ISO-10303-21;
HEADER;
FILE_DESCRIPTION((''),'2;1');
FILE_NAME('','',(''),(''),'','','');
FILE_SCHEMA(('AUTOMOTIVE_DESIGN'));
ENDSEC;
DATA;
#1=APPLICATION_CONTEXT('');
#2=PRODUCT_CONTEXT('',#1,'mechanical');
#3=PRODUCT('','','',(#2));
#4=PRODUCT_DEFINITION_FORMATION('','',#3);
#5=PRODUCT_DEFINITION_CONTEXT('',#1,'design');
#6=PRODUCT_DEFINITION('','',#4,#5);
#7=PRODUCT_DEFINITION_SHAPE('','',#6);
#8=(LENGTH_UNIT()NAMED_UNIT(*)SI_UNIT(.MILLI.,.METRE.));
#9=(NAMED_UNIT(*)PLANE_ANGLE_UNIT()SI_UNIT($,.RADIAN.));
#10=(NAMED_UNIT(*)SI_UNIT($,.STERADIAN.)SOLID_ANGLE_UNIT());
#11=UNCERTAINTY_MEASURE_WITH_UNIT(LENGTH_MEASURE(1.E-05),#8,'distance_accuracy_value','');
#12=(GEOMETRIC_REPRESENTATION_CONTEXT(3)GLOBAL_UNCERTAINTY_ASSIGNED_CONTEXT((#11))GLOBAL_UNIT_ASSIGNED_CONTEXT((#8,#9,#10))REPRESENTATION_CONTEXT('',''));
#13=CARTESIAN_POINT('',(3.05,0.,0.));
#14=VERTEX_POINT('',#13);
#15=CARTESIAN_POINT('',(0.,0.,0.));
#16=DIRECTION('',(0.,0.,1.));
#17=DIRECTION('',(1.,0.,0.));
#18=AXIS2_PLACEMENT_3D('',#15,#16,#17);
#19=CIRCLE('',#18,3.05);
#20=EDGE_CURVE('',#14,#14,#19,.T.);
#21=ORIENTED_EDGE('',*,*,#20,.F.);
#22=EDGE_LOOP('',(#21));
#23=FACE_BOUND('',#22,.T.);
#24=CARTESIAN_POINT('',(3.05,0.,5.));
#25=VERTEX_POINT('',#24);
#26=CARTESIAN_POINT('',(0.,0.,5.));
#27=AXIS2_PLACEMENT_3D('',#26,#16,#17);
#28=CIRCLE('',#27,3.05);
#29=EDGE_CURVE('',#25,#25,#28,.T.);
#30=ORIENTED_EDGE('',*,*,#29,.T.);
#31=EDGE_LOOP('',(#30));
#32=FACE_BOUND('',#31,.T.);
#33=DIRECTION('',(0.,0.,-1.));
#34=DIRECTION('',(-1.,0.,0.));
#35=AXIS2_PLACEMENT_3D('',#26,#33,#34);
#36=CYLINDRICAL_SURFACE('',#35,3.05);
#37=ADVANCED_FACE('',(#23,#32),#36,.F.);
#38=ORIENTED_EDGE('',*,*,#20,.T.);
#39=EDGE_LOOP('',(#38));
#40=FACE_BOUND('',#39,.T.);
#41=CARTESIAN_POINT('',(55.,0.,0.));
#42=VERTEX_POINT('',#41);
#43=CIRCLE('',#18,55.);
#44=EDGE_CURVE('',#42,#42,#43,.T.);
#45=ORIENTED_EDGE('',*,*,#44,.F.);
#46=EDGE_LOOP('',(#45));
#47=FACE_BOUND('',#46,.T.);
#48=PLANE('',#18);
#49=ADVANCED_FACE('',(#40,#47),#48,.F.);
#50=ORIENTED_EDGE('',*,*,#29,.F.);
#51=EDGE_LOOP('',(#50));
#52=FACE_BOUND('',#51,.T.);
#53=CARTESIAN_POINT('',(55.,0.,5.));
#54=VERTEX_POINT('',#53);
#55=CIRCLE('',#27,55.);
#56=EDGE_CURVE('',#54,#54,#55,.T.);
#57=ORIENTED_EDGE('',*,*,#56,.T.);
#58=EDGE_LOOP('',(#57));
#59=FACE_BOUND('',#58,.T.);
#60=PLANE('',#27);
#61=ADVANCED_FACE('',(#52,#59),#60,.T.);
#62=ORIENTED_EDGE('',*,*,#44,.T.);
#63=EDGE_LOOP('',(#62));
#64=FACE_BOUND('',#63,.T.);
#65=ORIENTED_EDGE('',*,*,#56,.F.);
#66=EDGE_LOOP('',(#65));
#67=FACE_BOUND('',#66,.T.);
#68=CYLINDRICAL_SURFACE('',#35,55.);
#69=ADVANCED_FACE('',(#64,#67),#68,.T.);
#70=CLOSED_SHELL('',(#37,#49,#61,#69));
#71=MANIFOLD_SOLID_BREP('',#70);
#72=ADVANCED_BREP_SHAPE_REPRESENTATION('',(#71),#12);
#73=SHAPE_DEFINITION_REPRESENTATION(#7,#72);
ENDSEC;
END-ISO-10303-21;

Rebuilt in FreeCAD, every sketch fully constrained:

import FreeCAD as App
import Part
import Sketcher

V = App.Vector

doc = App.newDocument("Part")
params = doc.addObject("Spreadsheet::Sheet", "Params")
for row, (alias, value) in enumerate([
    ("sketch1_diameter", "110 mm"),
    ("sketch1_diameter2", "6.1 mm"),
    ("pad1_length", "5 mm"),
], start=1):
    params.set(f"A{row}", alias)
    params.set(f"B{row}", "=" + value)
    params.setAlias(f"B{row}", alias)

body = doc.addObject("PartDesign::Body", "Body")

sketch1 = body.newObject("Sketcher::SketchObject", "Sketch")
sketch1.AttachmentSupport = (doc.getObject("XY_Plane"), [""])
sketch1.MapMode = "FlatFace"
sketch1.addGeometry([
    Part.Circle(V(0, 0, 0), V(0, 0, 1), 55),
    Part.Circle(V(0, 0, 0), V(0, 0, 1), 3),
], False)
sketch1.addConstraint([
    Sketcher.Constraint("Coincident", 0, 3, -1, 1),
    Sketcher.Constraint("Coincident", 1, 3, -1, 1),
    Sketcher.Constraint("Diameter", 0, 110.0),
    Sketcher.Constraint("Diameter", 1, 6.1),
])
sketch1.setExpression("Constraints[2]", "Params.sketch1_diameter")
sketch1.setExpression("Constraints[3]", "Params.sketch1_diameter2")
pad1 = body.newObject("PartDesign::Pad", "Pad")
pad1.Profile = sketch1
pad1.setExpression("Length", "Params.pad1_length")

doc.recompute()
